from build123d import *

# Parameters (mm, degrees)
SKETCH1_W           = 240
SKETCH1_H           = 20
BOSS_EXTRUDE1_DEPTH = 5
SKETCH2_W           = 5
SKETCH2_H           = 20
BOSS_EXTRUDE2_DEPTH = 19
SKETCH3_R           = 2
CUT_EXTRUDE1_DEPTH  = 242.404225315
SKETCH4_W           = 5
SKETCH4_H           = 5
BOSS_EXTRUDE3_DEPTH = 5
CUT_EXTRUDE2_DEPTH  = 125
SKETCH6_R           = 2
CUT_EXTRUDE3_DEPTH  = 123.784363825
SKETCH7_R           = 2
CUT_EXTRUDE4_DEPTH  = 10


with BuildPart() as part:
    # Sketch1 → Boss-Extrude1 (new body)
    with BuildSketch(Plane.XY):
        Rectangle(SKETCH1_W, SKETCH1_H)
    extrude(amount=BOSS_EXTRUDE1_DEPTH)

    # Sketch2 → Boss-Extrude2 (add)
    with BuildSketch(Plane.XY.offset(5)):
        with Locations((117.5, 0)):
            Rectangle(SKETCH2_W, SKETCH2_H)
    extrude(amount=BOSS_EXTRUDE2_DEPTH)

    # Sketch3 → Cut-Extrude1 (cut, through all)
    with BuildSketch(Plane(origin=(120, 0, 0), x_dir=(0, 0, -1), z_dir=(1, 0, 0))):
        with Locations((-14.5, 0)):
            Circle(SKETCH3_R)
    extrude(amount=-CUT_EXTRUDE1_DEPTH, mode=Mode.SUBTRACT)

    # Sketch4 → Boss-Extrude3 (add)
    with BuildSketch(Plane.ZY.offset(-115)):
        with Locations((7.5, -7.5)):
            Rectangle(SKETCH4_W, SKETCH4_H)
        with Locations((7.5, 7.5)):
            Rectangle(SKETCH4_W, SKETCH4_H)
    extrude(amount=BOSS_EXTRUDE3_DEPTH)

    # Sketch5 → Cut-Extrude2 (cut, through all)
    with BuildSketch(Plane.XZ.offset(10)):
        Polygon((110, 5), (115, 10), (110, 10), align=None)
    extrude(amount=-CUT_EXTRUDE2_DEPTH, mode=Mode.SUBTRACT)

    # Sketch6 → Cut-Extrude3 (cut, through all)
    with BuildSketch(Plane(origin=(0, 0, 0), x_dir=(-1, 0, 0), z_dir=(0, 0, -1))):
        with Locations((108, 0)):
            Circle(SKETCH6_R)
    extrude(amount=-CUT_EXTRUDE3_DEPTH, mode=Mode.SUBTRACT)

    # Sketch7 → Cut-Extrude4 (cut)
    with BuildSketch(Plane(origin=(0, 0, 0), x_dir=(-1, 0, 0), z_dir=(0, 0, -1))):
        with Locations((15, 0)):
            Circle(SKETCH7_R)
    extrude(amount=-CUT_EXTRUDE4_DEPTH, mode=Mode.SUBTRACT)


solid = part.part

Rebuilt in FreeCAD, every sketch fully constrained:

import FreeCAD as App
import Part
import Sketcher
Q = App.Units.Quantity


def add_polygon(sketch, points):
    """Adds a closed chain of lines whose ends are joined by coincident constraints."""
    first, n = sketch.GeometryCount, len(points)
    for a, b in zip(points, points[1:] + points[:1]):
        sketch.addGeometry(Part.LineSegment(App.Vector(*a, 0), App.Vector(*b, 0)), False)
    for i in range(n):
        sketch.addConstraint(Sketcher.Constraint("Coincident", first + i, 2, first + (i + 1) % n, 1))

doc = App.newDocument("Part")
body = doc.addObject("PartDesign::Body", "Body")

sketch1 = body.newObject("Sketcher::SketchObject", "Sketch")
sketch1.AttachmentSupport = (doc.getObject("XY_Plane"), [""])
sketch1.MapMode = "FlatFace"
add_polygon(sketch1, [(-120, 10), (-120, -10), (120, -10), (120, 10)])
sketch1.addConstraint([
    Sketcher.Constraint("Vertical", 0),
    Sketcher.Constraint("Horizontal", 1),
    Sketcher.Constraint("Vertical", 2),
    Sketcher.Constraint("Horizontal", 3),
    Sketcher.Constraint("Symmetric", 0, 2, 2, 2, -1, 1),
    Sketcher.Constraint("DistanceX", 1, 1, 1, 2, Q("240 mm")),
    Sketcher.Constraint("DistanceY", 0, 2, 0, 1, Q("20 mm")),
])
pad1 = body.newObject("PartDesign::Pad", "Pad")
pad1.Profile = sketch1
pad1.Length = 5

sketch2 = body.newObject("Sketcher::SketchObject", "Sketch001")
sketch2.AttachmentSupport = (doc.getObject("XY_Plane"), [""])
sketch2.MapMode = "FlatFace"
sketch2.AttachmentOffset = App.Placement(App.Vector(0, 0, 5), App.Rotation())
add_polygon(sketch2, [(115, 10), (115, -10), (120, -10), (120, 10)])
sketch2.addConstraint([
    Sketcher.Constraint("Vertical", 0),
    Sketcher.Constraint("Horizontal", 1),
    Sketcher.Constraint("Vertical", 2),
    Sketcher.Constraint("Horizontal", 3),
    Sketcher.Constraint("DistanceX", 1, 1, 1, 2, Q("5 mm")),
    Sketcher.Constraint("DistanceY", 0, 2, 0, 1, Q("20 mm")),
    Sketcher.Constraint("DistanceX", -1, 1, 0, 2, Q("115 mm")),
    Sketcher.Constraint("DistanceY", 0, 2, -1, 1, Q("10 mm")),
])
pad2 = body.newObject("PartDesign::Pad", "Pad001")
pad2.Profile = sketch2
pad2.Length = 19

sketch3 = body.newObject("Sketcher::SketchObject", "Sketch002")
sketch3.AttachmentSupport = (doc.getObject("YZ_Plane"), [""])
sketch3.MapMode = "FlatFace"
sketch3.AttachmentOffset = App.Placement(App.Vector(0, 0, 120), App.Rotation())
sketch3.addGeometry(Part.Circle(App.Vector(0, 14.5, 0), App.Vector(0, 0, 1), 2), False)
sketch3.addConstraint([
    Sketcher.Constraint("PointOnObject", 0, 3, -2),
    Sketcher.Constraint("Diameter", 0, Q("4 mm")),
    Sketcher.Constraint("DistanceY", -1, 1, 0, 3, Q("14.5 mm")),
])
pocket1 = body.newObject("PartDesign::Pocket", "Pocket")
pocket1.Profile = sketch3
pocket1.Type = "ThroughAll"

sketch4 = body.newObject("Sketcher::SketchObject", "Sketch003")
sketch4.AttachmentSupport = (doc.getObject("YZ_Plane"), [""])
sketch4.MapMode = "FlatFace"
sketch4.AttachmentOffset = App.Placement(App.Vector(0, 0, 115), App.Rotation())
add_polygon(sketch4, [(-5, 5), (-10, 5), (-10, 10), (-5, 10)])
add_polygon(sketch4, [(10, 5), (5, 5), (5, 10), (10, 10)])
sketch4.addConstraint([
    Sketcher.Constraint("Horizontal", 0),
    Sketcher.Constraint("Vertical", 1),
    Sketcher.Constraint("Horizontal", 2),
    Sketcher.Constraint("Vertical", 3),
    Sketcher.Constraint("Horizontal", 4),
    Sketcher.Constraint("Vertical", 5),
    Sketcher.Constraint("Horizontal", 6),
    Sketcher.Constraint("Vertical", 7),
    Sketcher.Constraint("Symmetric", 3, 2, 4, 2, -2),
    Sketcher.Constraint("Symmetric", 1, 2, 6, 2, -2),
    Sketcher.Constraint("Equal", 6, 1),
    Sketcher.Constraint("DistanceX", 0, 2, 0, 1, Q("5 mm")),
    Sketcher.Constraint("DistanceX", 0, 2, -1, 1, Q("10 mm")),
    Sketcher.Constraint("DistanceY", -1, 1, 0, 2, Q("5 mm")),
])
pad3 = body.newObject("PartDesign::Pad", "Pad002")
pad3.Profile = sketch4
pad3.Length = 5
pad3.Reversed = True

sketch5 = body.newObject("Sketcher::SketchObject", "Sketch004")
sketch5.AttachmentSupport = (doc.getObject("XZ_Plane"), [""])
sketch5.MapMode = "FlatFace"
sketch5.AttachmentOffset = App.Placement(App.Vector(0, 0, 10), App.Rotation())
add_polygon(sketch5, [(110, 5), (115, 10), (110, 10)])
sketch5.addConstraint([
    Sketcher.Constraint("Horizontal", 1),
    Sketcher.Constraint("Vertical", 2),
    Sketcher.Constraint("Equal", 1, 2),
    Sketcher.Constraint("DistanceX", 1, 2, 1, 1, Q("5 mm")),
    Sketcher.Constraint("DistanceX", -1, 1, 0, 2, Q("115 mm")),
    Sketcher.Constraint("DistanceY", -1, 1, 0, 2, Q("10 mm")),
])
pocket2 = body.newObject("PartDesign::Pocket", "Pocket001")
pocket2.Profile = sketch5
pocket2.Type = "ThroughAll"

sketch6 = body.newObject("Sketcher::SketchObject", "Sketch005")
sketch6.AttachmentSupport = (doc.getObject("XY_Plane"), [""])
sketch6.MapMode = "FlatFace"
sketch6.addGeometry(Part.Circle(App.Vector(-108, 0, 0), App.Vector(0, 0, 1), 2), False)
sketch6.addConstraint([
    Sketcher.Constraint("PointOnObject", 0, 3, -1),
    Sketcher.Constraint("Diameter", 0, Q("4 mm")),
    Sketcher.Constraint("DistanceX", 0, 3, -1, 1, Q("108 mm")),
])
pocket3 = body.newObject("PartDesign::Pocket", "Pocket002")
pocket3.Profile = sketch6
pocket3.Type = "ThroughAll"
pocket3.Reversed = True

sketch7 = body.newObject("Sketcher::SketchObject", "Sketch006")
sketch7.AttachmentSupport = (doc.getObject("XY_Plane"), [""])
sketch7.MapMode = "FlatFace"
sketch7.addGeometry(Part.Circle(App.Vector(-15, 0, 0), App.Vector(0, 0, 1), 2), False)
sketch7.addConstraint([
    Sketcher.Constraint("PointOnObject", 0, 3, -1),
    Sketcher.Constraint("Diameter", 0, Q("4 mm")),
    Sketcher.Constraint("DistanceX", 0, 3, -1, 1, Q("15 mm")),
])
pocket4 = body.newObject("PartDesign::Pocket", "Pocket003")
pocket4.Profile = sketch7
pocket4.Length = 10
pocket4.Reversed = True

doc.recompute()
